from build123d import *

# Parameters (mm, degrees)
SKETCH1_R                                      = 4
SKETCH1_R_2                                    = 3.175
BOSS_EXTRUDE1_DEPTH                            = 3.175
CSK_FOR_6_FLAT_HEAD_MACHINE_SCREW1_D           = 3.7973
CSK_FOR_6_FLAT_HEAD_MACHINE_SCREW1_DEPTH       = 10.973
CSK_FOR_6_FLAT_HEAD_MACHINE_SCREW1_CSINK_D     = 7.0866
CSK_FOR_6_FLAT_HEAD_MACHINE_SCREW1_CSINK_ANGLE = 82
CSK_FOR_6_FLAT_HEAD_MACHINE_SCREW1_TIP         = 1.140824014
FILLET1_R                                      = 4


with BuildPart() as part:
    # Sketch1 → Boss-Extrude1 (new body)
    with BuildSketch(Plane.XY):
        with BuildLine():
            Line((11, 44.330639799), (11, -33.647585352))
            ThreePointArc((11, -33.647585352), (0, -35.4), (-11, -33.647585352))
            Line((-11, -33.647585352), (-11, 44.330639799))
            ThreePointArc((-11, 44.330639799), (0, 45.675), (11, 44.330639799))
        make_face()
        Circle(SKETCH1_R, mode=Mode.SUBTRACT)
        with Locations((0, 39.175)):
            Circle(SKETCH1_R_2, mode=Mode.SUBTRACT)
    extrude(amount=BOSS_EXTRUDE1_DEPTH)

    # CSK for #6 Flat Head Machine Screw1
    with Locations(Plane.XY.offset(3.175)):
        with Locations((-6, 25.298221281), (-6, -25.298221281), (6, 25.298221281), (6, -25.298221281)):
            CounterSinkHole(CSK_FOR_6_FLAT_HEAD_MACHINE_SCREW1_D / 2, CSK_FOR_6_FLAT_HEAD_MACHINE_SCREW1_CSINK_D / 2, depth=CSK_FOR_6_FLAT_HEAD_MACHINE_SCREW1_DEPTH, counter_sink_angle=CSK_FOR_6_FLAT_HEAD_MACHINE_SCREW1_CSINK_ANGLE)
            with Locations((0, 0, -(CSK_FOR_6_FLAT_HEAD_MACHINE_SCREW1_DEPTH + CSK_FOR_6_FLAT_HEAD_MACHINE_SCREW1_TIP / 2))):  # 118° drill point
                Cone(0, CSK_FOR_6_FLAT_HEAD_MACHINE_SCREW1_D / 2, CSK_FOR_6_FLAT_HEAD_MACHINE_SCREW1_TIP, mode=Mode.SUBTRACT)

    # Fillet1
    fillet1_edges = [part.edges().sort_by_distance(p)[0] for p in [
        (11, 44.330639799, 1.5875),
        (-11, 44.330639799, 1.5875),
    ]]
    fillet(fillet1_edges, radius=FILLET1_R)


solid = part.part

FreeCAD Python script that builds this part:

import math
import FreeCAD as App
import Part
import Sketcher
Q = App.Units.Quantity


def edges_at(feature, points):
    """Names of the edges that pass closest to the given points."""
    edges = feature.Shape.Edges
    near = lambda p: min(range(len(edges)), key=lambda i: edges[i].distToShape(Part.Vertex(*p))[0])
    return sorted({f"Edge{near(p) + 1}" for p in points})

doc = App.newDocument("Part")
body = doc.addObject("PartDesign::Body", "Body")

sketch1 = body.newObject("Sketcher::SketchObject", "Sketch")
sketch1.AttachmentSupport = (doc.getObject("XY_Plane"), [""])
sketch1.MapMode = "FlatFace"
sketch1.addGeometry([
    Part.LineSegment(App.Vector(11, -33.6, 0), App.Vector(11, 44.3, 0)),
    Part.ArcOfCircle(Part.Circle(App.Vector(0, 0, 0), App.Vector(0, 0, 1), 45.7), math.radians(76), math.radians(104)),
    Part.LineSegment(App.Vector(-11, 44.3, 0), App.Vector(-11, -33.6, 0)),
    Part.ArcOfCircle(Part.Circle(App.Vector(0, 0, 0), App.Vector(0, 0, 1), 35.4), math.radians(-108), math.radians(-72)),
    Part.Circle(App.Vector(0, 0, 0), App.Vector(0, 0, 1), 4),
    Part.Circle(App.Vector(0, 39.2, 0), App.Vector(0, 0, 1), 3.2),
], False)
sketch1.addConstraint([
    Sketcher.Constraint("Coincident", 0, 2, 1, 1),
    Sketcher.Constraint("Coincident", 1, 2, 2, 1),
    Sketcher.Constraint("Coincident", 2, 2, 3, 1),
    Sketcher.Constraint("Coincident", 3, 2, 0, 1),
    Sketcher.Constraint("Vertical", 0),
    Sketcher.Constraint("Vertical", 2),
    Sketcher.Constraint("Coincident", 1, 3, -1, 1),
    Sketcher.Constraint("Coincident", 3, 3, -1, 1),
    Sketcher.Constraint("Coincident", 4, 3, -1, 1),
    Sketcher.Constraint("PointOnObject", 5, 3, -2),
    Sketcher.Constraint("Horizontal", 0, 2, 1, 2),
    Sketcher.Constraint("Diameter", 4, Q("8 mm")),
    Sketcher.Constraint("Radius", 3, Q("35.4 mm")),
    Sketcher.Constraint("Diameter", 5, Q("6.35 mm")),
    Sketcher.Constraint("DistanceX", -1, 1, 0, 2, Q("11 mm")),
    Sketcher.Constraint("Radius", 1, Q("45.675 mm")),
    Sketcher.Constraint("DistanceY", -1, 1, 5, 3, Q("39.175 mm")),
])
pad1 = body.newObject("PartDesign::Pad", "Pad")
pad1.Profile = sketch1
pad1.Length = 3.175

sketch2 = body.newObject("Sketcher::SketchObject", "Sketch001")
sketch2.AttachmentSupport = (doc.getObject("XY_Plane"), [""])
sketch2.MapMode = "FlatFace"
sketch2.AttachmentOffset = App.Placement(App.Vector(0, 0, 3.175), App.Rotation())
sketch2.addGeometry([
    Part.Circle(App.Vector(-6, 25.3, 0), App.Vector(0, 0, 1), 1.9),
    Part.Circle(App.Vector(-6, -25.3, 0), App.Vector(0, 0, 1), 1.9),
    Part.Circle(App.Vector(6, 25.3, 0), App.Vector(0, 0, 1), 1.9),
    Part.Circle(App.Vector(6, -25.3, 0), App.Vector(0, 0, 1), 1.9),
], False)
sketch2.addConstraint([
    Sketcher.Constraint("Equal", 0, 1),
    Sketcher.Constraint("Equal", 1, 2),
    Sketcher.Constraint("Equal", 2, 3),
    Sketcher.Constraint("Symmetric", 1, 3, 2, 3, -1, 1),
    Sketcher.Constraint("Symmetric", 0, 3, 3, 3, -1, 1),
    Sketcher.Constraint("Symmetric", 0, 3, 2, 3, -2),
    Sketcher.Constraint("DistanceX", 0, 3, -1, 1, Q("6 mm")),
    Sketcher.Constraint("Diameter", 0, Q("3.7973 mm")),
    Sketcher.Constraint("DistanceY", -1, 1, 0, 3, Q("25.298221 mm")),
])
doc.recompute()
hole = body.newObject("PartDesign::Hole", "Hole")
hole.Profile = sketch2
hole.ThreadType = "None"
hole.Diameter = 3.7973
hole.DepthType = "Dimension"
hole.Depth = 10.973
hole.DrillPoint = "Angled"
hole.DrillPointAngle = 118
hole.HoleCutType = "Countersink"
hole.HoleCutDiameter = 7.0866
hole.HoleCutCountersinkAngle = 82
doc.recompute()

fillet = body.newObject("PartDesign::Fillet", "Fillet")
fillet.Base = (hole, edges_at(hole, [(11, 44.331, 1.587), (-11, 44.331, 1.587)]))
fillet.Radius = 4

doc.recompute()
